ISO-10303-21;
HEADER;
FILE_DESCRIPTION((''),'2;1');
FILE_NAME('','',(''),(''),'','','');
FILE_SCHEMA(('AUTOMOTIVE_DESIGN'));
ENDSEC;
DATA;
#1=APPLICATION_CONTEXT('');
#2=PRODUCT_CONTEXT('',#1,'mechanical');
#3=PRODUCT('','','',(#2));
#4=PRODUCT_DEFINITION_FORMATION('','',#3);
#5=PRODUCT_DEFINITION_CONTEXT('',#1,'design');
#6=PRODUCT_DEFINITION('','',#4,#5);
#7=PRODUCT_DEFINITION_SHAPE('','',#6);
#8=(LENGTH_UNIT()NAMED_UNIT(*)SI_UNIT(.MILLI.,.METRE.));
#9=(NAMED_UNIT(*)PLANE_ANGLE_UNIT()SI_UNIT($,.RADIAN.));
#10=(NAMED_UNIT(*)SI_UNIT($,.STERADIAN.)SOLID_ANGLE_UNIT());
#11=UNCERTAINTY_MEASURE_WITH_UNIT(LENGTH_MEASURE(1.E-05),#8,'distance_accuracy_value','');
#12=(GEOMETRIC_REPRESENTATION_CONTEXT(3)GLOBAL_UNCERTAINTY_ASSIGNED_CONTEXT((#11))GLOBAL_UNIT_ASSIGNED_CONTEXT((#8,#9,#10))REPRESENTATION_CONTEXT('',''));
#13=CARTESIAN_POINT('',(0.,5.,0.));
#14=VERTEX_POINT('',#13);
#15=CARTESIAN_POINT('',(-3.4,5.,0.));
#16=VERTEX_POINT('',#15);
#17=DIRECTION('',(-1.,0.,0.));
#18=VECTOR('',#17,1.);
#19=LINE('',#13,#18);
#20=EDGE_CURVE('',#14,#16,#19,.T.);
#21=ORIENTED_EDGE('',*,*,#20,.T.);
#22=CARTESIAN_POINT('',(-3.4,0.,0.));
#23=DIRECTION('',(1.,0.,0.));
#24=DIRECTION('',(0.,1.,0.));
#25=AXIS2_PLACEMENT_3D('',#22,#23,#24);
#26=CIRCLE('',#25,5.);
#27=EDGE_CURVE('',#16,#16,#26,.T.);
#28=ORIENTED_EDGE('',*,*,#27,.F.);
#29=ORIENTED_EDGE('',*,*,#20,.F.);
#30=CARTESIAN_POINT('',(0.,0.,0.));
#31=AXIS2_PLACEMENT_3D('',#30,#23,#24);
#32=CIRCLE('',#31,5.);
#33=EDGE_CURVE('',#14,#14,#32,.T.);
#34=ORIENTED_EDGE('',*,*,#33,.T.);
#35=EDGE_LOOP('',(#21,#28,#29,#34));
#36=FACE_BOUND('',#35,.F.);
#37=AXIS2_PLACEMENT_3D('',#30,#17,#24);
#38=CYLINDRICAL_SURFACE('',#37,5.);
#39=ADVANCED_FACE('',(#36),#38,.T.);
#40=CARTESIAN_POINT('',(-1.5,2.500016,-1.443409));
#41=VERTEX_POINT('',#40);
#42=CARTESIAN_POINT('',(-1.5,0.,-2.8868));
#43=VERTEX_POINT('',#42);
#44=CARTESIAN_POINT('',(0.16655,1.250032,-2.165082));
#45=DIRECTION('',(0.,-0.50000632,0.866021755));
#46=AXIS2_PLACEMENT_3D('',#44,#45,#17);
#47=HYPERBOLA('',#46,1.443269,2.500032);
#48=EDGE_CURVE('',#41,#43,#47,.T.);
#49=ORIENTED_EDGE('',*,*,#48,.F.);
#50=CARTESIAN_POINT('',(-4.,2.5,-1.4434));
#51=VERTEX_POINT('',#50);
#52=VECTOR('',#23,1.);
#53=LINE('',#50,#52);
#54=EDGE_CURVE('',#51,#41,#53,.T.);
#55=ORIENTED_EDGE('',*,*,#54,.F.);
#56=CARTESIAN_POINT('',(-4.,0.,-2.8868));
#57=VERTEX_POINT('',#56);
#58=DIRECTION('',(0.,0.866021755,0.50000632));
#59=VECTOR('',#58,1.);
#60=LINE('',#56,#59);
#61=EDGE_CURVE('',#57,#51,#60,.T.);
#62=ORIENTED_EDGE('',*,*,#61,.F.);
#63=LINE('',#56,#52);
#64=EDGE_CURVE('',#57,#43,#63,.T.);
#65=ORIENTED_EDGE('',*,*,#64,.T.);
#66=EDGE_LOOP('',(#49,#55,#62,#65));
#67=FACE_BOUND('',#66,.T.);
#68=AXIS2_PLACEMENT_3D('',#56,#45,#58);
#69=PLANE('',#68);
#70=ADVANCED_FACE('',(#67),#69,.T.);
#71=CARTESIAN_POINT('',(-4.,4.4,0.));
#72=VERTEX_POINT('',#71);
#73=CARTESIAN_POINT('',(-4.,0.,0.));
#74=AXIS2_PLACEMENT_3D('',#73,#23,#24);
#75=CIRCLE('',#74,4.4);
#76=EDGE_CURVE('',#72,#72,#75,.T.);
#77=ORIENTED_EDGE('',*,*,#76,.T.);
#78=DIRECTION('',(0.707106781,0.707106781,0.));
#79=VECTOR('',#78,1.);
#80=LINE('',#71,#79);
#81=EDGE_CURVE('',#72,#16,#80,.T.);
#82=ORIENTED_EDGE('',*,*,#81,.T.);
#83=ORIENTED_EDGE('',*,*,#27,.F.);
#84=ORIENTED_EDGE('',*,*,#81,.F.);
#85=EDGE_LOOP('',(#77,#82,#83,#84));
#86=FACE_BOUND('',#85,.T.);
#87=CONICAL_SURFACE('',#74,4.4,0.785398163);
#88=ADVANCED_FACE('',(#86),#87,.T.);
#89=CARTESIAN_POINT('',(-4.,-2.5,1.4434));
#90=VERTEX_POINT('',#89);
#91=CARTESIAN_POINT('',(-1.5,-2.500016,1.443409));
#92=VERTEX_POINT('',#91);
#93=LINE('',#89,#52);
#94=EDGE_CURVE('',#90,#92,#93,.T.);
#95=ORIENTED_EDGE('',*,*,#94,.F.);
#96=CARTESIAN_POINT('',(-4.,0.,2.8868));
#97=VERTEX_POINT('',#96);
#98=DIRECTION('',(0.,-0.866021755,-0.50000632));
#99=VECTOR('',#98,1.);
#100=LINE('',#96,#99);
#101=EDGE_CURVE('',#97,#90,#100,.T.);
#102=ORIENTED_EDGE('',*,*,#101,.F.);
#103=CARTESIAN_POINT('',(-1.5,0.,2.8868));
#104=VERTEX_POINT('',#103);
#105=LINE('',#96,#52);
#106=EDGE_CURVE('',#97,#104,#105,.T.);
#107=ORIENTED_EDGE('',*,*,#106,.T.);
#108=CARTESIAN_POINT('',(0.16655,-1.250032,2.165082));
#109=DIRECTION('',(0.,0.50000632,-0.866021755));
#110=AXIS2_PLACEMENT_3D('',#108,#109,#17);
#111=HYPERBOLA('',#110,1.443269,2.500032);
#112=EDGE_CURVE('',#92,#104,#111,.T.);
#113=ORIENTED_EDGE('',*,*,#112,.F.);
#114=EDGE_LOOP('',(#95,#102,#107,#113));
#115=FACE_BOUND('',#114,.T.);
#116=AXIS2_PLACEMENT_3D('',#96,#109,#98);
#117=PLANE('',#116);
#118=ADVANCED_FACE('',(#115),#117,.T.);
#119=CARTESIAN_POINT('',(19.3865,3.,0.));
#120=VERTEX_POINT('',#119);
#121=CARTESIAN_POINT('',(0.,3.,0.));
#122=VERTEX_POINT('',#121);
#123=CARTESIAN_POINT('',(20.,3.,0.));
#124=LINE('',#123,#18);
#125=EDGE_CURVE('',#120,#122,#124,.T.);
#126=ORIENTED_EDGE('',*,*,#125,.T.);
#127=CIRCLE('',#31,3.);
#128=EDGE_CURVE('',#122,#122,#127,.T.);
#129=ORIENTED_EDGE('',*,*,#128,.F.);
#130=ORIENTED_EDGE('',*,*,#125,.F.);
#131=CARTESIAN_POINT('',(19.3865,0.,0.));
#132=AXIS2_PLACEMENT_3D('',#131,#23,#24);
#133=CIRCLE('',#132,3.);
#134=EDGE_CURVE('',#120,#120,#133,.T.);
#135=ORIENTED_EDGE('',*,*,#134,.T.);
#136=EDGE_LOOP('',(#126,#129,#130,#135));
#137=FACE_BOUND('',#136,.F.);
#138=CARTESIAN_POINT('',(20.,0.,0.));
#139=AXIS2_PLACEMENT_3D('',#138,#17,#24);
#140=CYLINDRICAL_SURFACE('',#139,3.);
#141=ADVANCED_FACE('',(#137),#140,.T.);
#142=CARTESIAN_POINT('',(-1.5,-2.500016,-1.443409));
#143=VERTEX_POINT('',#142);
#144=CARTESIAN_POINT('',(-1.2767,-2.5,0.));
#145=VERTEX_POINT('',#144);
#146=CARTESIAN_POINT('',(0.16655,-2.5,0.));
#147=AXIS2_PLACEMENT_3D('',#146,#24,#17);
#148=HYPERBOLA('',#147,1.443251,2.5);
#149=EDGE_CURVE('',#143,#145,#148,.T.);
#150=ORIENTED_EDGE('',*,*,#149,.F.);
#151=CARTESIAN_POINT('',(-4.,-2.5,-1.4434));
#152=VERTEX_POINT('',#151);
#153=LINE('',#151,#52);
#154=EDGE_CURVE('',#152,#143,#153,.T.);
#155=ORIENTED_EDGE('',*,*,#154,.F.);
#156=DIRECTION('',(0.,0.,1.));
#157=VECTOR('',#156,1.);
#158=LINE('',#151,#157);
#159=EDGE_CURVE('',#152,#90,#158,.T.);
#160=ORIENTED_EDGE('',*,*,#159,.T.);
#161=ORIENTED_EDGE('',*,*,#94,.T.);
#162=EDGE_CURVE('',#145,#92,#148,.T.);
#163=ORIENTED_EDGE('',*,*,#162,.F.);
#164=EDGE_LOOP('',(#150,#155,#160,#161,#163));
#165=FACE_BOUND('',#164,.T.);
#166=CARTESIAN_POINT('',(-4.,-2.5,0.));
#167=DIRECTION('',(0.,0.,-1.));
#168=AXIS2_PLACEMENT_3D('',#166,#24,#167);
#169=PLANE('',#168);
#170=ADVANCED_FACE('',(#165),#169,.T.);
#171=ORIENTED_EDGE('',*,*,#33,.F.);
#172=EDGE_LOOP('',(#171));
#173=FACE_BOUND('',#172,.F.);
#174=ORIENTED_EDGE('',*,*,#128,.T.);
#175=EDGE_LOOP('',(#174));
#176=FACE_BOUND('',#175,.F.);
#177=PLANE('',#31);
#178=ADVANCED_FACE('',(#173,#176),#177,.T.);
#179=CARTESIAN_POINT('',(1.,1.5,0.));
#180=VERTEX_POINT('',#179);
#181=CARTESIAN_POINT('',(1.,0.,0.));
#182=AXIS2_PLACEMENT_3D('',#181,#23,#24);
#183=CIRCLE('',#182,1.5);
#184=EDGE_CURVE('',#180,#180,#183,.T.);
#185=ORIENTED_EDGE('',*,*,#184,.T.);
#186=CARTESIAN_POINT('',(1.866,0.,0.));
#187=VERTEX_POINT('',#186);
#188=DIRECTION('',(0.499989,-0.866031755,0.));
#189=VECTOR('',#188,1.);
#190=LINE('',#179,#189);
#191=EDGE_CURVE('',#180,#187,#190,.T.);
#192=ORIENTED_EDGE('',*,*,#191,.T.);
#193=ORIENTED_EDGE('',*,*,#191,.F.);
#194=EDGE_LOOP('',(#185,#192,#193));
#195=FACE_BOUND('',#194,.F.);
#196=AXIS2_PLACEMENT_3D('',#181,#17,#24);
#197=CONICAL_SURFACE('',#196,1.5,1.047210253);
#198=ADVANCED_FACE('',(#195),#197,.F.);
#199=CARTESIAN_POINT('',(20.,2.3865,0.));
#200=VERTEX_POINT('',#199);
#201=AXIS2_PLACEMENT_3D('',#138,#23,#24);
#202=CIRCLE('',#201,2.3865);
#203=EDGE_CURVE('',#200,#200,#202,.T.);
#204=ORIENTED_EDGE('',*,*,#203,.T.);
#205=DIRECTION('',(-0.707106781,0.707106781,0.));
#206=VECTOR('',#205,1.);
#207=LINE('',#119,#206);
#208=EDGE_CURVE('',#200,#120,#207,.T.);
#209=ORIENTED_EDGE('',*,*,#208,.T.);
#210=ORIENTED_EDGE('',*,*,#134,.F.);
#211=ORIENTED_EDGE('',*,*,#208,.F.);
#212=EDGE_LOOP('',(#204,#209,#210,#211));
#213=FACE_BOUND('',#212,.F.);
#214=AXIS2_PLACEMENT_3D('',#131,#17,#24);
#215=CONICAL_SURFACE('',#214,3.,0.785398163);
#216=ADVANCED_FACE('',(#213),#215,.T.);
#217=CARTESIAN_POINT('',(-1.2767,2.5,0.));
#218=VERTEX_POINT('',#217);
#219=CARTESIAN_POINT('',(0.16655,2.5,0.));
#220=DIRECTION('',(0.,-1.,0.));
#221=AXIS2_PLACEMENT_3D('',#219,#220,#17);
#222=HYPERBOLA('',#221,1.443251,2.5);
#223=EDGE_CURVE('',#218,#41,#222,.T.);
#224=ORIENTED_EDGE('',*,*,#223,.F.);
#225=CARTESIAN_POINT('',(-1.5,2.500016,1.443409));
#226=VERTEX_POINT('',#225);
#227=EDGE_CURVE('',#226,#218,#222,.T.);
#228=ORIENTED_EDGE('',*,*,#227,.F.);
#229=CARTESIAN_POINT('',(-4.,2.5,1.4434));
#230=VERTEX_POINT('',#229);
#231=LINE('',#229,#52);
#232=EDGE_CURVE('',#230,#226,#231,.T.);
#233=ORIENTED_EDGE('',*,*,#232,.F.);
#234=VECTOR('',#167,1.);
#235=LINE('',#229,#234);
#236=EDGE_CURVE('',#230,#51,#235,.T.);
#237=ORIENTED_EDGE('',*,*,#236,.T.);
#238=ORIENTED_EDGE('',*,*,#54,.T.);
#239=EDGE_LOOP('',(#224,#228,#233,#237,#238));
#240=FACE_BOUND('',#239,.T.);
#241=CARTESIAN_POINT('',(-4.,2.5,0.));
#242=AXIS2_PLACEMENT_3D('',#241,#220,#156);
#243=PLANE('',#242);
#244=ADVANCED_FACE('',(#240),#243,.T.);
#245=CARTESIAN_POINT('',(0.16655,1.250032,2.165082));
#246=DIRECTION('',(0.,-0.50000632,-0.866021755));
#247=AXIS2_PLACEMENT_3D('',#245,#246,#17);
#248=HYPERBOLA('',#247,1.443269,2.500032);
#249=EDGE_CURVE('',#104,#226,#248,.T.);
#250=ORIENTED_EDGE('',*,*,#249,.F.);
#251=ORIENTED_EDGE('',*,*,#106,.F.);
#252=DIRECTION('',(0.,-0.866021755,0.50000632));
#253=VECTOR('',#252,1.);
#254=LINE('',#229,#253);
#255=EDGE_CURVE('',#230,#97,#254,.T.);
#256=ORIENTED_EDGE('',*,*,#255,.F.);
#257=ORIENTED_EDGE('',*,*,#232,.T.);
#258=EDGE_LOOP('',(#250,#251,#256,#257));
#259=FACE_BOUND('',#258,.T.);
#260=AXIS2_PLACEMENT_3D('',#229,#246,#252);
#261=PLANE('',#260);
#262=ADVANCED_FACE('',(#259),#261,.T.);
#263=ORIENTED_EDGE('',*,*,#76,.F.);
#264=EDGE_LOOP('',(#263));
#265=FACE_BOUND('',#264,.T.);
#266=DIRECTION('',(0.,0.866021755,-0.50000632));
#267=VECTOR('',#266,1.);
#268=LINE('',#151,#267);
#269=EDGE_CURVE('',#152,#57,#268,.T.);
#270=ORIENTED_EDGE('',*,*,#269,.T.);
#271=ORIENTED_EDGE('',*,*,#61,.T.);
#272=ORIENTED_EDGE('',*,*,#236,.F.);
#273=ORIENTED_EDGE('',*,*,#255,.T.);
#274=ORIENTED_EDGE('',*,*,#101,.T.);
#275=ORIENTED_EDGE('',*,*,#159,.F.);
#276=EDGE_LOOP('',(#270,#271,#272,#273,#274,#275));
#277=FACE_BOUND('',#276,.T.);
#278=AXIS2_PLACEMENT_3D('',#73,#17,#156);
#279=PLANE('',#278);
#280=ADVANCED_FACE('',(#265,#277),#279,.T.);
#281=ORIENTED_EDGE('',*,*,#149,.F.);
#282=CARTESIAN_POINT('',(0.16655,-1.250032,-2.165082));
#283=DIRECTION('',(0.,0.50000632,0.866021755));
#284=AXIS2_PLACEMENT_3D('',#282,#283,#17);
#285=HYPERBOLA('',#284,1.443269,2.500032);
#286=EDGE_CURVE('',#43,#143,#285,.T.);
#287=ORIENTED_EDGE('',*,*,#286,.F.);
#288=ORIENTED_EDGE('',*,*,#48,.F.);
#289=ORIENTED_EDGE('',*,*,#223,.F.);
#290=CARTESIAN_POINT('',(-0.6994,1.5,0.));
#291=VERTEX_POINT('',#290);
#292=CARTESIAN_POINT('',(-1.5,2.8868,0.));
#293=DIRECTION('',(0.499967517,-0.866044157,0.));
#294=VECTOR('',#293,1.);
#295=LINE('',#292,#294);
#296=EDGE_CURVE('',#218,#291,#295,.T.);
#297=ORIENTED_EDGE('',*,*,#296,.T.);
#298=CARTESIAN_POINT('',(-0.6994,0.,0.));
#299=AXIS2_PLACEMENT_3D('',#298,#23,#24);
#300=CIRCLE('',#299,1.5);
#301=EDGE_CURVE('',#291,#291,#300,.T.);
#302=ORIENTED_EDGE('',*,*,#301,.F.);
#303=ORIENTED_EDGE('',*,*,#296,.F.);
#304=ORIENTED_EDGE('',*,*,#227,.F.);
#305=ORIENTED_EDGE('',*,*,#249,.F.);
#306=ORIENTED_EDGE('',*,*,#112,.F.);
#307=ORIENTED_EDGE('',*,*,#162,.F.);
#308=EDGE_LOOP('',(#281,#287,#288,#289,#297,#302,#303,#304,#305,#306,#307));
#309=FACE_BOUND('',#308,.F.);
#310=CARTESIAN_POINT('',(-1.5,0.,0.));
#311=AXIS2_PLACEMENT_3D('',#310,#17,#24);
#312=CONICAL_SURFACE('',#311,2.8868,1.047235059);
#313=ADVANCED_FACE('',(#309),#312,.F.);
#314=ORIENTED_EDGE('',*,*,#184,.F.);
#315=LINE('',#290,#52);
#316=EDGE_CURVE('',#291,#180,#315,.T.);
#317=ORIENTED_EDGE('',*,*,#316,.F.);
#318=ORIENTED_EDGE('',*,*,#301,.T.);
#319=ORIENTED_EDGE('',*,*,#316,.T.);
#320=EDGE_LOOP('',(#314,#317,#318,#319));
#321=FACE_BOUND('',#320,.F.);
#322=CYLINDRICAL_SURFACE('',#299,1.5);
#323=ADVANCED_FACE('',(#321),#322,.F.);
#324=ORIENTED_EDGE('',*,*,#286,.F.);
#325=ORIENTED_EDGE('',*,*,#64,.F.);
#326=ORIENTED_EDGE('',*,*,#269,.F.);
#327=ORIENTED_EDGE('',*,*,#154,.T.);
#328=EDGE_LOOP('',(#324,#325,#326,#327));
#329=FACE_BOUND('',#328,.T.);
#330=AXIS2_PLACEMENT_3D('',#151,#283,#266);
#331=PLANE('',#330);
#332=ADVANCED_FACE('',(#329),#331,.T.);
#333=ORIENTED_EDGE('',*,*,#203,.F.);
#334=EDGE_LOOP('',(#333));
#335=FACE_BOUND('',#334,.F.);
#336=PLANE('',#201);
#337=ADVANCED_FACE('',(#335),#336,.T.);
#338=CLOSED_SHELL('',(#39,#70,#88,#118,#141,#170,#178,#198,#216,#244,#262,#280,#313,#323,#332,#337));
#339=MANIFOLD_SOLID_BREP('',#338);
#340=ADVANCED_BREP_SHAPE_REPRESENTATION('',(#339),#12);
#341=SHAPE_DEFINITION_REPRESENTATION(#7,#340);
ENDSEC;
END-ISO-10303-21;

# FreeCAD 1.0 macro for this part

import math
import FreeCAD as App
import Part
import Sketcher
from FreeCAD import Vector
Q = App.Units.Quantity


def edges_at(feature, points):
    """Names of the edges that pass closest to the given points."""
    edges = feature.Shape.Edges
    near = lambda p: min(range(len(edges)), key=lambda i: edges[i].distToShape(Part.Vertex(*p))[0])
    return sorted({f"Edge{near(p) + 1}" for p in points})


def add_polygon(sketch, points):
    """Adds a closed chain of lines whose ends are joined by coincident constraints."""
    first, n = sketch.GeometryCount, len(points)
    for a, b in zip(points, points[1:] + points[:1]):
        sketch.addGeometry(Part.LineSegment(App.Vector(*a, 0), App.Vector(*b, 0)), False)
    for i in range(n):
        sketch.addConstraint(Sketcher.Constraint("Coincident", first + i, 2, first + (i + 1) % n, 1))

doc = App.newDocument("Part")
params = doc.addObject("Spreadsheet::Sheet", "Params")
for row, (alias, value) in enumerate([
    ("sketch1_width", "20 mm"),
    ("sketch1_width2", "4 mm"),
    ("sketch1_height", "3 mm"),
    ("sketch1_width3", "2.5 mm"),
    ("revolution_angle", "360 deg"),
    ("sketch2_width", "0.6 mm"),
    ("groove_angle", "360 deg"),
    ("pad1_length", "2.7233 mm"),
    ("chamfer_size", "0.6135 mm"),
    ("chamfer_size2", "0.6135 mm"),
], start=1):
    params.set(f"A{row}", alias)
    params.set(f"B{row}", "=" + value)
    params.setAlias(f"B{row}", alias)

body = doc.addObject("PartDesign::Body", "Body")

sketch1 = body.newObject("Sketcher::SketchObject", "Sketch")
sketch1.AttachmentSupport = (doc.getObject("XY_Plane"), [""])
sketch1.MapMode = "FlatFace"
add_polygon(sketch1, [(1, 1.5), (1.9, 0), (20, 0), (20, 3), (0, 3), (0, 5), (-4, 5), (-4, 2.9), (-1.5, 2.9), (-0.7, 1.5)])
sketch1.addConstraint([
    Sketcher.Constraint("Horizontal", 1),
    Sketcher.Constraint("Vertical", 2),
    Sketcher.Constraint("Horizontal", 3),
    Sketcher.Constraint("Vertical", 4),
    Sketcher.Constraint("Horizontal", 5),
    Sketcher.Constraint("Vertical", 6),
    Sketcher.Constraint("Horizontal", 7),
    Sketcher.Constraint("Horizontal", 9),
    Sketcher.Constraint("PointOnObject", 0, 2, -1),
    Sketcher.Constraint("PointOnObject", 3, 2, -2),
    Sketcher.Constraint("Parallel", 0, 8),
    Sketcher.Constraint("DistanceX", 3, 2, 3, 1, Q("20 mm")),
    Sketcher.Constraint("DistanceX", 5, 2, 5, 1, Q("4 mm")),
    Sketcher.Constraint("DistanceY", 2, 1, 2, 2, Q("3 mm")),
    Sketcher.Constraint("DistanceX", 7, 1, 7, 2, Q("2.5 mm")),
    Sketcher.Constraint("DistanceY", -1, 1, 4, 2, Q("5 mm")),
    Sketcher.Constraint("DistanceX", 7, 2, 9, 2, Q("2.5 mm")),
    Sketcher.Constraint("Angle", 0, Q("-60.0007 deg")),
    Sketcher.Constraint("DistanceY", -1, 1, 8, 2, Q("1.5 mm")),
    Sketcher.Constraint("DistanceX", 9, 1, 9, 2, Q("1.6994 mm")),
])
sketch1.setExpression("Constraints[21]", "Params.sketch1_width")
sketch1.setExpression("Constraints[22]", "Params.sketch1_width2")
sketch1.setExpression("Constraints[23]", "Params.sketch1_height")
sketch1.setExpression("Constraints[24]", "Params.sketch1_width3")
revolution = body.newObject("PartDesign::Revolution", "Revolution")
revolution.Profile = sketch1
revolution.ReferenceAxis = (sketch1, ["H_Axis"])
revolution.setExpression("Angle", "Params.revolution_angle")

sketch2 = body.newObject("Sketcher::SketchObject", "Sketch001")
sketch2.AttachmentSupport = (doc.getObject("XY_Plane"), [""])
sketch2.MapMode = "FlatFace"
add_polygon(sketch2, [(-4, 4.4), (-3.4, 5), (-4, 5)])
sketch2.addConstraint([
    Sketcher.Constraint("Horizontal", 1),
    Sketcher.Constraint("Vertical", 2),
    Sketcher.Constraint("Equal", 1, 2),
    Sketcher.Constraint("DistanceX", 1, 2, 1, 1, Q("0.6 mm")),
    Sketcher.Constraint("DistanceY", -1, 1, 0, 2, Q("5 mm")),
    Sketcher.Constraint("DistanceX", 1, 2, -1, 1, Q("4 mm")),
])
sketch2.setExpression("Constraints[6]", "Params.sketch2_width")
groove = body.newObject("PartDesign::Groove", "Groove")
groove.Profile = sketch2
groove.ReferenceAxis = (sketch2, ["H_Axis"])
groove.setExpression("Angle", "Params.groove_angle")

sketch3 = body.newObject("Sketcher::SketchObject", "Sketch002")
sketch3.AttachmentSupport = (doc.getObject("YZ_Plane"), [""])
sketch3.MapMode = "FlatFace"
sketch3.AttachmentOffset = App.Placement(Vector(0, 0, -4), App.Rotation())
sketch3.addGeometry([
    Part.LineSegment(Vector(2.5, 1.4, 0), Vector(0, 2.9, 0)),
    Part.ArcOfCircle(Part.Circle(Vector(0, 0, 0), Vector(0, 0, 1), 2.9), math.radians(30), math.radians(90)),
    Part.ArcOfCircle(Part.Circle(Vector(0, 0, 0), Vector(0, 0, 1), 2.9), math.radians(90), math.radians(150)),
    Part.LineSegment(Vector(0, 2.9, 0), Vector(-2.5, 1.4, 0)),
    Part.ArcOfCircle(Part.Circle(Vector(0, 0, 0), Vector(0, 0, 1), 2.9), math.radians(-30), math.radians(30)),
    Part.LineSegment(Vector(2.5, 1.4, 0), Vector(2.5, -1.4, 0)),
    Part.LineSegment(Vector(-2.5, 1.4, 0), Vector(-2.5, -1.4, 0)),
    Part.ArcOfCircle(Part.Circle(Vector(0, 0, 0), Vector(0, 0, 1), 2.9), math.radians(150), math.radians(210)),
    Part.LineSegment(Vector(-2.5, -1.4, 0), Vector(0, -2.9, 0)),
    Part.ArcOfCircle(Part.Circle(Vector(0, 0, 0), Vector(0, 0, 1), 2.9), math.radians(-150), math.radians(-90)),
    Part.ArcOfCircle(Part.Circle(Vector(0, 0, 0), Vector(0, 0, 1), 2.9), math.radians(-90), math.radians(-30)),
    Part.LineSegment(Vector(0, -2.9, 0), Vector(2.5, -1.4, 0)),
], False)
sketch3.addConstraint([
    Sketcher.Constraint("Coincident", 0, 1, 1, 1),
    Sketcher.Constraint("Coincident", 1, 2, 0, 2),
    Sketcher.Constraint("Coincident", 2, 1, 3, 1),
    Sketcher.Constraint("Coincident", 3, 2, 2, 2),
    Sketcher.Constraint("Coincident", 4, 1, 5, 2),
    Sketcher.Constraint("Coincident", 5, 1, 4, 2),
    Sketcher.Constraint("Coincident", 6, 1, 7, 1),
    Sketcher.Constraint("Coincident", 7, 2, 6, 2),
    Sketcher.Constraint("Coincident", 8, 1, 9, 1),
    Sketcher.Constraint("Coincident", 9, 2, 8, 2),
    Sketcher.Constraint("Coincident", 10, 1, 11, 1),
    Sketcher.Constraint("Coincident", 11, 2, 10, 2),
    Sketcher.Constraint("Vertical", 5),
    Sketcher.Constraint("Vertical", 6),
    Sketcher.Constraint("Coincident", 1, 3, -1, 1),
    Sketcher.Constraint("Coincident", 2, 3, -1, 1),
    Sketcher.Constraint("Coincident", 4, 3, -1, 1),
    Sketcher.Constraint("Coincident", 7, 3, -1, 1),
    Sketcher.Constraint("Coincident", 9, 3, -1, 1),
    Sketcher.Constraint("Coincident", 10, 3, -1, 1),
    Sketcher.Constraint("Coincident", 2, 1, 1, 2),
    Sketcher.Constraint("Coincident", 5, 1, 0, 1),
    Sketcher.Constraint("Coincident", 6, 1, 3, 2),
    Sketcher.Constraint("Coincident", 8, 1, 7, 2),
    Sketcher.Constraint("Coincident", 10, 1, 9, 2),
    Sketcher.Constraint("PointOnObject", 1, 2, -2),
    Sketcher.Constraint("PointOnObject", 9, 2, -2),
    Sketcher.Constraint("Parallel", 0, 8),
    Sketcher.Constraint("Parallel", 3, 11),
    Sketcher.Constraint("Angle", 0, Q("149.9996 deg")),
    Sketcher.Constraint("DistanceX", -1, 1, 0, 1, Q("2.5 mm")),
])
pad1 = body.newObject("PartDesign::Pad", "Pad")
pad1.Profile = sketch3
pad1.setExpression("Length", "Params.pad1_length")
doc.recompute()

chamfer = body.newObject("PartDesign::Chamfer", "Chamfer")
chamfer.Base = (pad1, edges_at(pad1, [(20, -3, 0)]))
chamfer.ChamferType = "Two distances"
chamfer.setExpression("Size", "Params.chamfer_size")
chamfer.setExpression("Size2", "Params.chamfer_size2")

doc.recompute()
